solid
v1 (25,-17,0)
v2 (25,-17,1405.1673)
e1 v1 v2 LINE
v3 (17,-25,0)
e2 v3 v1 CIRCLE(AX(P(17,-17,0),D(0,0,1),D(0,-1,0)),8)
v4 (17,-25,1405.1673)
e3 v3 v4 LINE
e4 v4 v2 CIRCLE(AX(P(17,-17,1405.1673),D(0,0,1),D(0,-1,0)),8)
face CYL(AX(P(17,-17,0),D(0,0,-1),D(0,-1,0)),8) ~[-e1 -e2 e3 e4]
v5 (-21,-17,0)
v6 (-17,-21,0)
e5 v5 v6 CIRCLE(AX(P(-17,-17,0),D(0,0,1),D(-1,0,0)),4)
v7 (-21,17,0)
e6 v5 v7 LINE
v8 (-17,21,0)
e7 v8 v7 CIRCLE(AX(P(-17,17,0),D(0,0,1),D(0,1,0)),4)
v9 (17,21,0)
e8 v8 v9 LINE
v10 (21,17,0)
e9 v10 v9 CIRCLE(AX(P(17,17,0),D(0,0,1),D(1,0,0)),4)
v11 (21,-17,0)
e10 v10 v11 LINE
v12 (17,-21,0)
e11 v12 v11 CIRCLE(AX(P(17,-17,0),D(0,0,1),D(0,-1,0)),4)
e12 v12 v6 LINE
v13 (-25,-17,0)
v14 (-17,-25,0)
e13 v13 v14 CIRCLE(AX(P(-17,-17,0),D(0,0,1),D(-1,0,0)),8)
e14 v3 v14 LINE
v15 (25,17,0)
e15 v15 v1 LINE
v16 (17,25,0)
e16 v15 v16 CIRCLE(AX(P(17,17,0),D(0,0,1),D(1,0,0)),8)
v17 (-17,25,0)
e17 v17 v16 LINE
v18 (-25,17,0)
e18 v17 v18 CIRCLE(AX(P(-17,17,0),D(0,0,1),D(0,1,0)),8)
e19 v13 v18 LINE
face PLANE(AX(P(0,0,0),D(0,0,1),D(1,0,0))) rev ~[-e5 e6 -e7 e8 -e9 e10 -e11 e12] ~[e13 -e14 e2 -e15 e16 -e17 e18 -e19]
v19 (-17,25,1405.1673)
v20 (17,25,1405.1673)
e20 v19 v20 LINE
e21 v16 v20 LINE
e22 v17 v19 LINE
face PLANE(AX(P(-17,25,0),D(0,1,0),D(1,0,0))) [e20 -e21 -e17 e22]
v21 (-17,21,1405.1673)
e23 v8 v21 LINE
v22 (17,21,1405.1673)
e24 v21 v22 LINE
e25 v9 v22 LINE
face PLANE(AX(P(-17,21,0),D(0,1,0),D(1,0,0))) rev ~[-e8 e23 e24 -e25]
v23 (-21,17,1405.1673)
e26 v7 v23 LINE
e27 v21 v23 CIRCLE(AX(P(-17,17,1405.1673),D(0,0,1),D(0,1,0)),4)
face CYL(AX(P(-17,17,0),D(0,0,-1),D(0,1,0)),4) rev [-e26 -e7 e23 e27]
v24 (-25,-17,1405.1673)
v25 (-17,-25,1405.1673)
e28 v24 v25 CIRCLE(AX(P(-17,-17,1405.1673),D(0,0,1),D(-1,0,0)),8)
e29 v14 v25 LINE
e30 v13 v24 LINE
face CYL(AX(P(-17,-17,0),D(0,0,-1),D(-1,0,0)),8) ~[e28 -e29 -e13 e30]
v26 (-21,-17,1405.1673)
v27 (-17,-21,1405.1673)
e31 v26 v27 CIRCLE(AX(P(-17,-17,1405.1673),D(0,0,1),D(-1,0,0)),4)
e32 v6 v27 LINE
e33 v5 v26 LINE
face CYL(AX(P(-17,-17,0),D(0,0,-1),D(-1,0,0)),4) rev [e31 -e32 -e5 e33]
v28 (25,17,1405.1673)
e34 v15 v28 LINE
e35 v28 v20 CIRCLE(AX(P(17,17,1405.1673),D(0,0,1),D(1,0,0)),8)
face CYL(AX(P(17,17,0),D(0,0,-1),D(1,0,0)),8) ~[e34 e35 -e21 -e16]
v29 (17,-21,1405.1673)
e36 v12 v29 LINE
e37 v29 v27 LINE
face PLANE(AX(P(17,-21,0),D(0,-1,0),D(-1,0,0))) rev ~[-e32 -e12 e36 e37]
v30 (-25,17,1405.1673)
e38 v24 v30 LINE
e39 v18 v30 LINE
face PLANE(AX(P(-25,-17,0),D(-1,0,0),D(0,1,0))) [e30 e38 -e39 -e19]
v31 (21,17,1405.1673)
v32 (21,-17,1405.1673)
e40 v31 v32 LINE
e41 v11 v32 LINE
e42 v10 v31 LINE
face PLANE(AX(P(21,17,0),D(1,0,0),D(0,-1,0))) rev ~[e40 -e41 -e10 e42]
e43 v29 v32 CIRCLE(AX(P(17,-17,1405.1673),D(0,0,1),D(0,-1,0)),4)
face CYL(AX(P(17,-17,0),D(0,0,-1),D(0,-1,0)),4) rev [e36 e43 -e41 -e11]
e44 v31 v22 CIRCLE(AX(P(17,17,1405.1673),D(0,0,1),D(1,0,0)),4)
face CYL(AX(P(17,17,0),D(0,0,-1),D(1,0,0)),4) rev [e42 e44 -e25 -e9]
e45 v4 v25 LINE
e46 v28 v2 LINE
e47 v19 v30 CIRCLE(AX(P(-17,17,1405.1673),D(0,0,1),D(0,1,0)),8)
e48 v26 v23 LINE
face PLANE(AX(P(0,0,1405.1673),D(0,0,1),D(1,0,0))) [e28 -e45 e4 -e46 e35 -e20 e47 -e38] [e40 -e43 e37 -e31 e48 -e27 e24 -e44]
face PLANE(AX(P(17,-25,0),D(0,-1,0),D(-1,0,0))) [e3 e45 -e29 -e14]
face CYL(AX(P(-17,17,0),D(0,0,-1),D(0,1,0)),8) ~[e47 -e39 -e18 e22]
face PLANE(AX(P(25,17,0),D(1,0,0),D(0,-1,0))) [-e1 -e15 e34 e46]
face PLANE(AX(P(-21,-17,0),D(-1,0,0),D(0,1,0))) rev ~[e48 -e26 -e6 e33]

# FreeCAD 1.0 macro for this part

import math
import FreeCAD as App
import Part
import Sketcher
Q = App.Units.Quantity

doc = App.newDocument("Part")
body = doc.addObject("PartDesign::Body", "Body")

# Sketch on XY plane
sketch1 = doc.addObject("Sketcher::SketchObject", "Sketch")
body.addObject(sketch1)
sketch1.AttachmentSupport = (doc.XY_Plane, [""])
sketch1.MapMode = "FlatFace"
sketch1.addGeometry(Part.LineSegment(App.Vector(-25, 17, 0), App.Vector(-25, -17, 0)), False)
sketch1.addGeometry(Part.ArcOfCircle(Part.Circle(App.Vector(-17, -17, 0), App.Vector(0, 0, 1), 8), math.radians(180), math.radians(270)), False)
sketch1.addGeometry(Part.LineSegment(App.Vector(-17, -25, 0), App.Vector(17, -25, 0)), False)
sketch1.addGeometry(Part.ArcOfCircle(Part.Circle(App.Vector(17, -17, 0), App.Vector(0, 0, 1), 8), math.radians(-90), math.radians(0)), False)
sketch1.addGeometry(Part.LineSegment(App.Vector(25, -17, 0), App.Vector(25, 17, 0)), False)
sketch1.addGeometry(Part.ArcOfCircle(Part.Circle(App.Vector(17, 17, 0), App.Vector(0, 0, 1), 8), math.radians(0), math.radians(90)), False)
sketch1.addGeometry(Part.LineSegment(App.Vector(17, 25, 0), App.Vector(-17, 25, 0)), False)
sketch1.addGeometry(Part.ArcOfCircle(Part.Circle(App.Vector(-17, 17, 0), App.Vector(0, 0, 1), 8), math.radians(90), math.radians(180)), False)
sketch1.addGeometry(Part.ArcOfCircle(Part.Circle(App.Vector(-17, 17, 0), App.Vector(0, 0, 1), 4), math.radians(90), math.radians(180)), False)
sketch1.addGeometry(Part.LineSegment(App.Vector(-17, 21, 0), App.Vector(17, 21, 0)), False)
sketch1.addGeometry(Part.ArcOfCircle(Part.Circle(App.Vector(17, 17, 0), App.Vector(0, 0, 1), 4), math.radians(0), math.radians(90)), False)
sketch1.addGeometry(Part.LineSegment(App.Vector(21, 17, 0), App.Vector(21, -17, 0)), False)
sketch1.addGeometry(Part.ArcOfCircle(Part.Circle(App.Vector(17, -17, 0), App.Vector(0, 0, 1), 4), math.radians(-90), math.radians(0)), False)
sketch1.addGeometry(Part.LineSegment(App.Vector(17, -21, 0), App.Vector(-17, -21, 0)), False)
sketch1.addGeometry(Part.ArcOfCircle(Part.Circle(App.Vector(-17, -17, 0), App.Vector(0, 0, 1), 4), math.radians(180), math.radians(270)), False)
sketch1.addGeometry(Part.LineSegment(App.Vector(-21, -17, 0), App.Vector(-21, 17, 0)), False)
sketch1.addConstraint(Sketcher.Constraint("Tangent", 0, 2, 1, 1))
sketch1.addConstraint(Sketcher.Constraint("Tangent", 1, 2, 2, 1))
sketch1.addConstraint(Sketcher.Constraint("Tangent", 2, 2, 3, 1))
sketch1.addConstraint(Sketcher.Constraint("Tangent", 3, 2, 4, 1))
sketch1.addConstraint(Sketcher.Constraint("Tangent", 4, 2, 5, 1))
sketch1.addConstraint(Sketcher.Constraint("Tangent", 5, 2, 6, 1))
sketch1.addConstraint(Sketcher.Constraint("Tangent", 6, 2, 7, 1))
sketch1.addConstraint(Sketcher.Constraint("Tangent", 7, 2, 0, 1))
sketch1.addConstraint(Sketcher.Constraint("Tangent", 8, 1, 9, 1))
sketch1.addConstraint(Sketcher.Constraint("Tangent", 9, 2, 10, 2))
sketch1.addConstraint(Sketcher.Constraint("Tangent", 10, 1, 11, 1))
sketch1.addConstraint(Sketcher.Constraint("Tangent", 11, 2, 12, 2))
sketch1.addConstraint(Sketcher.Constraint("Tangent", 12, 1, 13, 1))
sketch1.addConstraint(Sketcher.Constraint("Tangent", 13, 2, 14, 2))
sketch1.addConstraint(Sketcher.Constraint("Tangent", 14, 1, 15, 1))
sketch1.addConstraint(Sketcher.Constraint("Tangent", 15, 2, 8, 2))
sketch1.addConstraint(Sketcher.Constraint("Vertical", 0))
sketch1.addConstraint(Sketcher.Constraint("Horizontal", 2))
sketch1.addConstraint(Sketcher.Constraint("Vertical", 4))
sketch1.addConstraint(Sketcher.Constraint("Horizontal", 6))
sketch1.addConstraint(Sketcher.Constraint("Horizontal", 9))
sketch1.addConstraint(Sketcher.Constraint("Vertical", 11))
sketch1.addConstraint(Sketcher.Constraint("Horizontal", 13))
sketch1.addConstraint(Sketcher.Constraint("Vertical", 15))
sketch1.addConstraint(Sketcher.Constraint("Coincident", 8, 3, 7, 3))
sketch1.addConstraint(Sketcher.Constraint("Coincident", 10, 3, 5, 3))
sketch1.addConstraint(Sketcher.Constraint("Coincident", 12, 3, 3, 3))
sketch1.addConstraint(Sketcher.Constraint("Equal", 1, 3))
sketch1.addConstraint(Sketcher.Constraint("Equal", 3, 5))
sketch1.addConstraint(Sketcher.Constraint("Equal", 5, 7))
sketch1.addConstraint(Sketcher.Constraint("Equal", 12, 14))
sketch1.addConstraint(Sketcher.Constraint("Symmetric", 1, 3, 5, 3, -1, 1))
sketch1.addConstraint(Sketcher.Constraint("Equal", 13, 0))
sketch1.addConstraint(Sketcher.Constraint("Radius", 1, Q("8 mm")))
sketch1.addConstraint(Sketcher.Constraint("Radius", 8, Q("4 mm")))
sketch1.addConstraint(Sketcher.Constraint("DistanceX", 0, 2, -1, 1, Q("25 mm")))
pad1 = doc.addObject("PartDesign::Pad", "Pad")
body.addObject(pad1)
pad1.Profile = sketch1
pad1.Length = 1405.1673

doc.recompute()
